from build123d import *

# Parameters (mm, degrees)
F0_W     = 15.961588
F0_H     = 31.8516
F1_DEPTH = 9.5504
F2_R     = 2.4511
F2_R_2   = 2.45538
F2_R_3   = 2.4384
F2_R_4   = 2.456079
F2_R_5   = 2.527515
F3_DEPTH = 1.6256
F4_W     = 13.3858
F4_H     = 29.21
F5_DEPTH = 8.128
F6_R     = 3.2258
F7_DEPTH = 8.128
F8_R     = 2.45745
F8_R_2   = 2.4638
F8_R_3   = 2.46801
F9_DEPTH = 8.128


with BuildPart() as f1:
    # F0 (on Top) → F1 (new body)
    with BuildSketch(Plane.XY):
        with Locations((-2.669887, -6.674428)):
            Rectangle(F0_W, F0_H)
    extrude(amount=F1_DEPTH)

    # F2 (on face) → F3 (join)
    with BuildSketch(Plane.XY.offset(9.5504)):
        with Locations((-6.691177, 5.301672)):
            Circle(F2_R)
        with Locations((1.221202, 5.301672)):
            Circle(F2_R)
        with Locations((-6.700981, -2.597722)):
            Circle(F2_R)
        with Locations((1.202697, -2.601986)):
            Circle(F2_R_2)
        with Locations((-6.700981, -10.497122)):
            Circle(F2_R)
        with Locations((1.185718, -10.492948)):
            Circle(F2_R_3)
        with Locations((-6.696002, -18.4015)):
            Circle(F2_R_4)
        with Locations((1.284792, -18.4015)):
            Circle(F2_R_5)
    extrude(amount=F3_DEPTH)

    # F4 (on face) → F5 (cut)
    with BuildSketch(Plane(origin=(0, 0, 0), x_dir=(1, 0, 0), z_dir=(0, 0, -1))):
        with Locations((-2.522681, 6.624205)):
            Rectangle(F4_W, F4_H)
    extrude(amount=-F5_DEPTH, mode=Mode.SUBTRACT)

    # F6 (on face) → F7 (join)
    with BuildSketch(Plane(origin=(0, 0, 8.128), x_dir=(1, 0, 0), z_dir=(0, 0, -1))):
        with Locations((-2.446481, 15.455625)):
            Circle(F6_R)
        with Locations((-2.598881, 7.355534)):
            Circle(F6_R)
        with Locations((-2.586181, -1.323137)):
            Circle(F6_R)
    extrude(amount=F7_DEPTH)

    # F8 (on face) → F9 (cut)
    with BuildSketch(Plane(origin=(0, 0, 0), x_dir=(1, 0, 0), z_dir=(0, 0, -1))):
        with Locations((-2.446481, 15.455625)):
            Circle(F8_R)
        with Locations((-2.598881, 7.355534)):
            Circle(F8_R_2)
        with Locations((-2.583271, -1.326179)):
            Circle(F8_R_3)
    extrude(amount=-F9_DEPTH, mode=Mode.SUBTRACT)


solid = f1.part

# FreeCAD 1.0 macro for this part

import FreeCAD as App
import Part
import Sketcher
from FreeCAD import Vector
Q = App.Units.Quantity


def add_polygon(sketch, points):
    """Adds a closed chain of lines whose ends are joined by coincident constraints."""
    first, n = sketch.GeometryCount, len(points)
    for a, b in zip(points, points[1:] + points[:1]):
        sketch.addGeometry(Part.LineSegment(App.Vector(*a, 0), App.Vector(*b, 0)), False)
    for i in range(n):
        sketch.addConstraint(Sketcher.Constraint("Coincident", first + i, 2, first + (i + 1) % n, 1))

doc = App.newDocument("Part")
body = doc.addObject("PartDesign::Body", "Body")

sketch1 = doc.addObject("Sketcher::SketchObject", "Sketch")
body.addObject(sketch1)
sketch1.AttachmentSupport = (doc.XY_Plane, [""])
sketch1.MapMode = "FlatFace"
add_polygon(sketch1, [(-10.650681, 9.251372), (-10.650681, -22.600228), (5.310907, -22.600228), (5.310907, 9.251372)])
sketch1.addConstraint(Sketcher.Constraint("Vertical", 0))
sketch1.addConstraint(Sketcher.Constraint("Horizontal", 1))
sketch1.addConstraint(Sketcher.Constraint("Vertical", 2))
sketch1.addConstraint(Sketcher.Constraint("Horizontal", 3))
sketch1.addConstraint(Sketcher.Constraint("DistanceY", 0, 2, 0, 1, Q("1.254 in")))
sketch1.addConstraint(Sketcher.Constraint("DistanceX", 1, 1, 1, 2, 15.961588))
sketch1.addConstraint(Sketcher.Constraint("DistanceX", 0, 2, -1, 1, 10.650681))
sketch1.addConstraint(Sketcher.Constraint("DistanceY", 0, 2, -1, 1, 22.600228))
pad1 = doc.addObject("PartDesign::Pad", "Pad")
body.addObject(pad1)
pad1.Profile = sketch1
pad1.Length = Q("0.376 in")

sketch2 = doc.addObject("Sketcher::SketchObject", "Sketch001")
body.addObject(sketch2)
sketch2.AttachmentSupport = (doc.XY_Plane, [""])
sketch2.MapMode = "FlatFace"
sketch2.AttachmentOffset = App.Placement(Vector(0, 0, 0.376 * 25.4), App.Rotation())
sketch2.addGeometry(Part.Circle(Vector(-6.691177, 5.301672, 0), Vector(0, 0, 1), 2.4511), False)
sketch2.addGeometry(Part.Circle(Vector(1.221202, 5.301672, 0), Vector(0, 0, 1), 2.4511), False)
sketch2.addGeometry(Part.Circle(Vector(-6.700981, -2.597722, 0), Vector(0, 0, 1), 2.4511), False)
sketch2.addGeometry(Part.Circle(Vector(1.202697, -2.601986, 0), Vector(0, 0, 1), 2.45538), False)
sketch2.addGeometry(Part.Circle(Vector(-6.700981, -10.497122, 0), Vector(0, 0, 1), 2.4511), False)
sketch2.addGeometry(Part.Circle(Vector(1.185718, -10.492948, 0), Vector(0, 0, 1), 2.4384), False)
sketch2.addGeometry(Part.Circle(Vector(-6.696002, -18.4015, 0), Vector(0, 0, 1), 2.456079), False)
sketch2.addGeometry(Part.Circle(Vector(1.284792, -18.4015, 0), Vector(0, 0, 1), 2.527515), False)
sketch2.addConstraint(Sketcher.Constraint("Equal", 0, 1))
sketch2.addConstraint(Sketcher.Constraint("Equal", 1, 2))
sketch2.addConstraint(Sketcher.Constraint("Equal", 2, 4))
sketch2.addConstraint(Sketcher.Constraint("Horizontal", 0, 3, 1, 3))
sketch2.addConstraint(Sketcher.Constraint("Horizontal", 6, 3, 7, 3))
sketch2.addConstraint(Sketcher.Constraint("Vertical", 2, 3, 4, 3))
sketch2.addConstraint(Sketcher.Constraint("Diameter", 0, Q("0.193 in")))
sketch2.addConstraint(Sketcher.Constraint("Diameter", 5, Q("0.192 in")))
sketch2.addConstraint(Sketcher.Constraint("Diameter", 3, 4.91076))
sketch2.addConstraint(Sketcher.Constraint("Diameter", 7, 5.05503))
sketch2.addConstraint(Sketcher.Constraint("DistanceY", 4, 3, 2, 3, Q("0.311 in")))
sketch2.addConstraint(Sketcher.Constraint("Diameter", 6, 4.912158))
sketch2.addConstraint(Sketcher.Constraint("DistanceX", 4, 3, 5, 3, Q("0.3105 in")))
sketch2.addConstraint(Sketcher.Constraint("DistanceX", -1, 1, 1, 3, 1.221202))
sketch2.addConstraint(Sketcher.Constraint("DistanceY", 6, 3, -1, 1, 18.4015))
sketch2.addConstraint(Sketcher.Constraint("DistanceX", 6, 3, 3, 3, 7.898699))
sketch2.addConstraint(Sketcher.Constraint("DistanceX", 2, 3, -1, 1, 6.700981))
sketch2.addConstraint(Sketcher.Constraint("DistanceY", 4, 3, -1, 1, 10.497122))
sketch2.addConstraint(Sketcher.Constraint("DistanceX", -1, 1, 7, 3, 1.284792))
sketch2.addConstraint(Sketcher.Constraint("DistanceX", 0, 3, 1, 3, 7.912379))
sketch2.addConstraint(Sketcher.Constraint("DistanceX", 5, 3, 3, 3, 0.016979))
sketch2.addConstraint(Sketcher.Constraint("DistanceY", 5, 3, 1, 3, 15.79462))
sketch2.addConstraint(Sketcher.Constraint("DistanceY", 6, 3, 5, 3, 7.908552))
sketch2.addConstraint(Sketcher.Constraint("DistanceY", 3, 3, -1, 1, 2.601986))
pad2 = doc.addObject("PartDesign::Pad", "Pad001")
body.addObject(pad2)
pad2.Profile = sketch2
pad2.Length = Q("0.064 in")

sketch3 = doc.addObject("Sketcher::SketchObject", "Sketch002")
body.addObject(sketch3)
sketch3.AttachmentSupport = (doc.XY_Plane, [""])
sketch3.MapMode = "FlatFace"
add_polygon(sketch3, [(-9.215581, -21.229205), (-9.215581, 7.980795), (4.170219, 7.980795), (4.170219, -21.229205)])
sketch3.addConstraint(Sketcher.Constraint("Vertical", 0))
sketch3.addConstraint(Sketcher.Constraint("Horizontal", 1))
sketch3.addConstraint(Sketcher.Constraint("Vertical", 2))
sketch3.addConstraint(Sketcher.Constraint("Horizontal", 3))
sketch3.addConstraint(Sketcher.Constraint("DistanceY", 0, 1, 0, 2, Q("1.15 in")))
sketch3.addConstraint(Sketcher.Constraint("DistanceX", 1, 1, 1, 2, Q("0.527 in")))
sketch3.addConstraint(Sketcher.Constraint("DistanceX", 0, 2, -1, 1, 9.215581))
sketch3.addConstraint(Sketcher.Constraint("DistanceY", -1, 1, 0, 2, 7.980795))
pocket1 = doc.addObject("PartDesign::Pocket", "Pocket")
body.addObject(pocket1)
pocket1.Profile = sketch3
pocket1.Length = Q("0.32 in")
pocket1.Reversed = True

sketch4 = doc.addObject("Sketcher::SketchObject", "Sketch003")
body.addObject(sketch4)
sketch4.AttachmentSupport = (doc.XY_Plane, [""])
sketch4.MapMode = "FlatFace"
sketch4.AttachmentOffset = App.Placement(Vector(0, 0, 0.32 * 25.4), App.Rotation())
sketch4.addGeometry(Part.Circle(Vector(-2.446481, -15.455625, 0), Vector(0, 0, 1), 3.2258), False)
sketch4.addGeometry(Part.Circle(Vector(-2.598881, -7.355534, 0), Vector(0, 0, 1), 3.2258), False)
sketch4.addGeometry(Part.Circle(Vector(-2.586181, 1.323137, 0), Vector(0, 0, 1), 3.2258), False)
sketch4.addConstraint(Sketcher.Constraint("Equal", 0, 1))
sketch4.addConstraint(Sketcher.Constraint("Equal", 1, 2))
sketch4.addConstraint(Sketcher.Constraint("Diameter", 0, Q("0.254 in")))
sketch4.addConstraint(Sketcher.Constraint("DistanceX", 1, 3, 0, 3, Q("0.006 in")))
sketch4.addConstraint(Sketcher.Constraint("DistanceX", 1, 3, 2, 3, Q("0.0005 in")))
sketch4.addConstraint(Sketcher.Constraint("DistanceX", 0, 3, -1, 1, 2.446481))
sketch4.addConstraint(Sketcher.Constraint("DistanceY", 0, 3, 1, 3, 8.100091))
sketch4.addConstraint(Sketcher.Constraint("DistanceY", 1, 3, 2, 3, 8.678671))
sketch4.addConstraint(Sketcher.Constraint("DistanceY", 0, 3, -1, 1, 15.455625))
pad3 = doc.addObject("PartDesign::Pad", "Pad002")
body.addObject(pad3)
pad3.Profile = sketch4
pad3.Length = Q("0.32 in")
pad3.Reversed = True

sketch5 = doc.addObject("Sketcher::SketchObject", "Sketch004")
body.addObject(sketch5)
sketch5.AttachmentSupport = (doc.XY_Plane, [""])
sketch5.MapMode = "FlatFace"
sketch5.addGeometry(Part.Circle(Vector(-2.446481, -15.455625, 0), Vector(0, 0, 1), 2.45745), False)
sketch5.addGeometry(Part.Circle(Vector(-2.598881, -7.355534, 0), Vector(0, 0, 1), 2.4638), False)
sketch5.addGeometry(Part.Circle(Vector(-2.583271, 1.326179, 0), Vector(0, 0, 1), 2.46801), False)
sketch5.addConstraint(Sketcher.Constraint("Diameter", 1, Q("0.194 in")))
sketch5.addConstraint(Sketcher.Constraint("Diameter", 0, Q("0.1935 in")))
sketch5.addConstraint(Sketcher.Constraint("Diameter", 2, 4.93602))
sketch5.addConstraint(Sketcher.Constraint("DistanceX", 1, 3, 0, 3, Q("0.006 in")))
sketch5.addConstraint(Sketcher.Constraint("DistanceX", 0, 3, -1, 1, 2.446481))
sketch5.addConstraint(Sketcher.Constraint("DistanceX", 2, 3, -1, 1, 2.583271))
sketch5.addConstraint(Sketcher.Constraint("DistanceY", -1, 1, 2, 3, 1.326179))
sketch5.addConstraint(Sketcher.Constraint("DistanceY", 0, 3, 1, 3, 8.100091))
sketch5.addConstraint(Sketcher.Constraint("DistanceY", 0, 3, -1, 1, 15.455625))
pocket2 = doc.addObject("PartDesign::Pocket", "Pocket001")
body.addObject(pocket2)
pocket2.Profile = sketch5
pocket2.Length = Q("0.32 in")
pocket2.Reversed = True

doc.recompute()
